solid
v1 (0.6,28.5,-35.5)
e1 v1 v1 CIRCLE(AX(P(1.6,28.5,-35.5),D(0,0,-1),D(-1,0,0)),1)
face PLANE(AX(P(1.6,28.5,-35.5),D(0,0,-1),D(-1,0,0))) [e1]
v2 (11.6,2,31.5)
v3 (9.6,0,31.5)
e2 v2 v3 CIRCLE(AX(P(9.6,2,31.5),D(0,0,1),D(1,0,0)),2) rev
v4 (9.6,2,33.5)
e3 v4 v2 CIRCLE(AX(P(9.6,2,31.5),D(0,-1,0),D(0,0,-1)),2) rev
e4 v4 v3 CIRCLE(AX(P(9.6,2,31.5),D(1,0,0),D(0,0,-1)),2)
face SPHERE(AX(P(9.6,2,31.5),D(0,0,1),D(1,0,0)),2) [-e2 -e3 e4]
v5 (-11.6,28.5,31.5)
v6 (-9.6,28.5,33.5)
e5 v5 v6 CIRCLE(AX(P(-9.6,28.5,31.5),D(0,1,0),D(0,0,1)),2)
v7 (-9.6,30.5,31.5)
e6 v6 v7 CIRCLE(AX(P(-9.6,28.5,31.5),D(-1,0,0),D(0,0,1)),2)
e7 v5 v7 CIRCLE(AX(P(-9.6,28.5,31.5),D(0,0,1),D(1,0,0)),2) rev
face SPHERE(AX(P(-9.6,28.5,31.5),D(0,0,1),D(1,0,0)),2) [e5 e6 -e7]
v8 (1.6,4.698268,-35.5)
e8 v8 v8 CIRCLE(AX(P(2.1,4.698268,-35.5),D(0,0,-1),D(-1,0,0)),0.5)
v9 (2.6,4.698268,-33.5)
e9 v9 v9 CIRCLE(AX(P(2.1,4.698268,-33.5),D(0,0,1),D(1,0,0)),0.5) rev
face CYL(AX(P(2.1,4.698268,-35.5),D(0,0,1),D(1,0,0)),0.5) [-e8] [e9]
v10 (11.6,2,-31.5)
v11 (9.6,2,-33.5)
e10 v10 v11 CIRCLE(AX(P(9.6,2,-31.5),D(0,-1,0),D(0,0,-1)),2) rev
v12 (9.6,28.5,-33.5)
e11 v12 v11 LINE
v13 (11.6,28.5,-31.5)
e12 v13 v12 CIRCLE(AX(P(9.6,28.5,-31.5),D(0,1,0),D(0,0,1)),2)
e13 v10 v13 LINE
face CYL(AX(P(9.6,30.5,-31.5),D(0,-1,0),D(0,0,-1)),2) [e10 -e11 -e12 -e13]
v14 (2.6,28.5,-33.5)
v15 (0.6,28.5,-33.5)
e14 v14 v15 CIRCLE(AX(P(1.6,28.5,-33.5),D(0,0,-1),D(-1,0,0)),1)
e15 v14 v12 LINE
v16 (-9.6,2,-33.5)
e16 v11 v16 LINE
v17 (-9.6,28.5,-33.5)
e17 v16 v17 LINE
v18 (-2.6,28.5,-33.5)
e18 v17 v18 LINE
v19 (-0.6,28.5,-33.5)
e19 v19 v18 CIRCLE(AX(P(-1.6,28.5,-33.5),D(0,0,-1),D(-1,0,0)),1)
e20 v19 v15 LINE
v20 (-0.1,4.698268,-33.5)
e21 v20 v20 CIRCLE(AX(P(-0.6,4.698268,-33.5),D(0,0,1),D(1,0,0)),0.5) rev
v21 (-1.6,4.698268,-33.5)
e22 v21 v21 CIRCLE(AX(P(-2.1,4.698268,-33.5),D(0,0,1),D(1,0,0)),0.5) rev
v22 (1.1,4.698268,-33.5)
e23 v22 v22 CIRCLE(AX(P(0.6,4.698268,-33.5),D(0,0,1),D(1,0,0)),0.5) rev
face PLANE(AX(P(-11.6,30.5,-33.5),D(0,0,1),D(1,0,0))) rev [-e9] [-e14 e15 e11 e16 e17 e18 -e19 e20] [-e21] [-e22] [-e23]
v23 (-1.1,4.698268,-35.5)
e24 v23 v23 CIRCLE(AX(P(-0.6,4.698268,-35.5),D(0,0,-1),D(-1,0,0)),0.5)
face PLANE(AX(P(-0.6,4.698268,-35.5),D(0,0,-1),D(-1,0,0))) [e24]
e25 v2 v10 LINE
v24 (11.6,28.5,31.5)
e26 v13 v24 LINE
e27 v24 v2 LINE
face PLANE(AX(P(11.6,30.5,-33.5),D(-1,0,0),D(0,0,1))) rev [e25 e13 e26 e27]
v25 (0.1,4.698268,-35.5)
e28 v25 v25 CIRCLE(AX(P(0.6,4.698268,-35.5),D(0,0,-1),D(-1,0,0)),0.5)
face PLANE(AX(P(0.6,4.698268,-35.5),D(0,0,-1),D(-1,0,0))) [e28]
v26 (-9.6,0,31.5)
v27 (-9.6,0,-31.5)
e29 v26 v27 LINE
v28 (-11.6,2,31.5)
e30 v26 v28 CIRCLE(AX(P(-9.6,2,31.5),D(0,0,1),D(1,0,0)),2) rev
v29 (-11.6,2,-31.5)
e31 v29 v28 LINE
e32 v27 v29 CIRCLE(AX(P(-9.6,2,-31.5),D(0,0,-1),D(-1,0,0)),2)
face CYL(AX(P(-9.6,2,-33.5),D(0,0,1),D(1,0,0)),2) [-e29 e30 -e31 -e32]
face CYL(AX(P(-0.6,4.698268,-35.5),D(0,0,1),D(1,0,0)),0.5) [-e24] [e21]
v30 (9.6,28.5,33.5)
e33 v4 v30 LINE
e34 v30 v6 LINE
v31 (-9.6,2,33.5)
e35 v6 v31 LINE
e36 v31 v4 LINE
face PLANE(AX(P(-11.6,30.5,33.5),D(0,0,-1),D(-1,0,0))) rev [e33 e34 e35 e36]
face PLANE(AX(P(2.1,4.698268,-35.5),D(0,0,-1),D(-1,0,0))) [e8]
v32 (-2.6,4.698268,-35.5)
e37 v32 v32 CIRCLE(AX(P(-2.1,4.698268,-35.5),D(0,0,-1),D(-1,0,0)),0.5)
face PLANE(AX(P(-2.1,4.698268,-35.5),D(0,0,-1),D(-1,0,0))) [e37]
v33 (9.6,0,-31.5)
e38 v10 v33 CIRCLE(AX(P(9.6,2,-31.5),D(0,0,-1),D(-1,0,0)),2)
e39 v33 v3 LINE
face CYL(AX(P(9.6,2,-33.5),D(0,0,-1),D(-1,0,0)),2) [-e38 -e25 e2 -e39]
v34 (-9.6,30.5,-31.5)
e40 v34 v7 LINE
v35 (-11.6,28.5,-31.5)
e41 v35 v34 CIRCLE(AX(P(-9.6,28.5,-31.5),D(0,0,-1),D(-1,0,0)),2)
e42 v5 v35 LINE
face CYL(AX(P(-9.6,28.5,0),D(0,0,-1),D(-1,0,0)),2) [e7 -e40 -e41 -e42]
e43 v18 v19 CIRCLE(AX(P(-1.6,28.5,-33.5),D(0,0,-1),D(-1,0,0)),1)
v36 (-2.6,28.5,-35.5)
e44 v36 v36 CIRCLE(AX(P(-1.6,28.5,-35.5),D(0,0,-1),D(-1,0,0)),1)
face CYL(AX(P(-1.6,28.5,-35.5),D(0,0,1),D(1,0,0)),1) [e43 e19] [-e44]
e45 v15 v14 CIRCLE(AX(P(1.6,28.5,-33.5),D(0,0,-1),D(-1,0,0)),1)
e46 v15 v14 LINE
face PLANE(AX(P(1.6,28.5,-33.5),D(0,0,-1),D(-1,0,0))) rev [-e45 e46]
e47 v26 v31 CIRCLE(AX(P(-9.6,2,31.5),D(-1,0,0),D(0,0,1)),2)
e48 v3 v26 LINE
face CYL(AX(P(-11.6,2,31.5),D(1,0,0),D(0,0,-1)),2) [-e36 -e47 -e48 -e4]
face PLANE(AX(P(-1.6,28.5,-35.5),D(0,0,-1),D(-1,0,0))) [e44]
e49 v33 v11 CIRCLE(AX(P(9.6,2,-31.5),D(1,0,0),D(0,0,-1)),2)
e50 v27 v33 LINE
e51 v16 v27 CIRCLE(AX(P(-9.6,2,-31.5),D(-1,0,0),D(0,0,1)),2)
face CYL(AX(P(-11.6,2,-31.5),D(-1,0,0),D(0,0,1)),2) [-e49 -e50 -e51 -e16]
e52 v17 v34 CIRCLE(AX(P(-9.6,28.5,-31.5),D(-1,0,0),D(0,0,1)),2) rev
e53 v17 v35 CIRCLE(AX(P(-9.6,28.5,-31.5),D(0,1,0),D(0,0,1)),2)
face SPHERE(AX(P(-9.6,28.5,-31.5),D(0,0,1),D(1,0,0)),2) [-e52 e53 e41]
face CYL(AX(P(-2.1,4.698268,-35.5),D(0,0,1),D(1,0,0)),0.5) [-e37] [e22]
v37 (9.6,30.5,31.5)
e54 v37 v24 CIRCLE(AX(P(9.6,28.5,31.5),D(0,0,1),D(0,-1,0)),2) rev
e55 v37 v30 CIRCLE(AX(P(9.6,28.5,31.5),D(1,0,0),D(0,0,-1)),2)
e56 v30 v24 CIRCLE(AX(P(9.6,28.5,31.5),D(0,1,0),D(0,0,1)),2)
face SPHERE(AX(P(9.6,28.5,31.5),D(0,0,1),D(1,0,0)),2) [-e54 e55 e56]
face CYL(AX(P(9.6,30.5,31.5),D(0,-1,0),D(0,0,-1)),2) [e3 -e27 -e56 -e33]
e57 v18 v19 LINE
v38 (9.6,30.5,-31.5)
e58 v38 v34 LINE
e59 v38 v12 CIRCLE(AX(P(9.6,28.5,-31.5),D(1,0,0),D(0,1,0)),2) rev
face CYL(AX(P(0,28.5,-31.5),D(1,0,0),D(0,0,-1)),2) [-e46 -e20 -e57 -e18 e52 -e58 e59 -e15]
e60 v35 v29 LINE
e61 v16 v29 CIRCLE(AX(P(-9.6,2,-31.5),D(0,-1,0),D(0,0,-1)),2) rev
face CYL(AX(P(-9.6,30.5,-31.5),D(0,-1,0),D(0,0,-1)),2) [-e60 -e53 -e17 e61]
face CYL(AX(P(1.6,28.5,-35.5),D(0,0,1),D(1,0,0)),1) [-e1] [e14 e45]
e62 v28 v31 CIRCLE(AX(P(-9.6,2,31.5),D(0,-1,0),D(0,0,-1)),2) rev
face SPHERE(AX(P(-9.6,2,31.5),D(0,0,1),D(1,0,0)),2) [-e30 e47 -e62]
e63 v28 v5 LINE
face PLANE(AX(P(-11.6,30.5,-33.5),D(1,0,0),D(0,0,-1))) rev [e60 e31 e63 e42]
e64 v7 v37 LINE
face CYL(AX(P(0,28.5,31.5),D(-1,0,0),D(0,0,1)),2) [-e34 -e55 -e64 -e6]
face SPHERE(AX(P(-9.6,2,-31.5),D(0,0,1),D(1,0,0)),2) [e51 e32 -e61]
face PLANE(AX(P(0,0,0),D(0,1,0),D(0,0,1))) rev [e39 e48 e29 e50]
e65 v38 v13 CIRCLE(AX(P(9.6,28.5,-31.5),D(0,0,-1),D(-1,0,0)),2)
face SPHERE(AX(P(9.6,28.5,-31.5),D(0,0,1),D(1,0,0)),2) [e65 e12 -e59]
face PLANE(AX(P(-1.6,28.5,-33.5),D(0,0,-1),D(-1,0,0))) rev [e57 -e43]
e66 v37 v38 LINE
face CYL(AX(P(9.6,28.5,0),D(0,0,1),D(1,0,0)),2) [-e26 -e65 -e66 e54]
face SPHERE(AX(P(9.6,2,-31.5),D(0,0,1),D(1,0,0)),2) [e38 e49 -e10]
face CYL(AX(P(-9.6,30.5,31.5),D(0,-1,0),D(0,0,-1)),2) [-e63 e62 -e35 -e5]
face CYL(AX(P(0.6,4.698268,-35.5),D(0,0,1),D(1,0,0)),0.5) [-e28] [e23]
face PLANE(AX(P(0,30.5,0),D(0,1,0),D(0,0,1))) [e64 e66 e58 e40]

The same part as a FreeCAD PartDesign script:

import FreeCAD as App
import Part
import Sketcher

V = App.Vector
Q = App.Units.Quantity


def add_polygon(sketch, points):
    """Adds a closed chain of lines whose ends are joined by coincident constraints."""
    first, n = sketch.GeometryCount, len(points)
    for a, b in zip(points, points[1:] + points[:1]):
        sketch.addGeometry(Part.LineSegment(App.Vector(*a, 0), App.Vector(*b, 0)), False)
    for i in range(n):
        sketch.addConstraint(Sketcher.Constraint("Coincident", first + i, 2, first + (i + 1) % n, 1))

doc = App.newDocument("Part")
body = doc.addObject("PartDesign::Body", "Body")

# Sketch on XZ plane
sketch1 = doc.addObject("Sketcher::SketchObject", "Sketch")
body.addObject(sketch1)
sketch1.AttachmentSupport = (doc.XZ_Plane, [""])
sketch1.MapMode = "FlatFace"
add_polygon(sketch1, [(-11.6, -33.5), (-11.6, 33.5), (11.6, 33.5), (11.6, -33.5)])  # lines 0-3
sketch1.addConstraint([
    Sketcher.Constraint("Vertical", 0),
    Sketcher.Constraint("Horizontal", 1),
    Sketcher.Constraint("Vertical", 2),
    Sketcher.Constraint("Horizontal", 3),
    Sketcher.Constraint("Symmetric", 0, 2, 2, 2, -1, 1),
    Sketcher.Constraint("DistanceY", 0, 1, 0, 2, Q("67 mm")),
    Sketcher.Constraint("DistanceX", 1, 1, 1, 2, Q("23.2 mm")),
])
pad1 = doc.addObject("PartDesign::Pad", "Pad")
body.addObject(pad1)
pad1.Profile = sketch1
pad1.Length = 30.5
pad1.Reversed = True
doc.recompute()

fillet = doc.addObject("PartDesign::Fillet", "Fillet")
body.addObject(fillet)
fillet.Base = (pad1, ["Edge1"])
fillet.UseAllEdges = True
fillet.Radius = 2

# Sketch on XY plane
sketch2 = doc.addObject("Sketcher::SketchObject", "Sketch001")
body.addObject(sketch2)
sketch2.AttachmentSupport = (doc.XY_Plane, [""])
sketch2.MapMode = "FlatFace"
sketch2.AttachmentOffset = App.Placement(V(0, 0, -33.5), App.Rotation())
sketch2.addGeometry([
    Part.Circle(V(1.6, 28.5, 0), V(0, 0, 1), 1),  # 0
    Part.Circle(V(-1.6, 28.5, 0), V(0, 0, 1), 1),  # 1
    Part.Circle(V(0.6, 4.698268, 0), V(0, 0, 1), 0.5),  # 2
    Part.Circle(V(2.1, 4.698268, 0), V(0, 0, 1), 0.5),  # 3
    Part.Circle(V(-0.6, 4.698268, 0), V(0, 0, 1), 0.5),  # 4
    Part.Circle(V(-2.1, 4.698268, 0), V(0, 0, 1), 0.5),  # 5
], False)
sketch2.addConstraint([
    Sketcher.Constraint("Equal", 0, 1),
    Sketcher.Constraint("Equal", 2, 3),
    Sketcher.Constraint("Equal", 3, 4),
    Sketcher.Constraint("Equal", 4, 5),
    Sketcher.Constraint("Symmetric", 0, 3, 1, 3, -2),
    Sketcher.Constraint("Symmetric", 2, 3, 4, 3, -2),
    Sketcher.Constraint("Symmetric", 3, 3, 5, 3, -2),
    Sketcher.Constraint("Horizontal", 2, 3, 3, 3),
    Sketcher.Constraint("Diameter", 0, Q("2 mm")),
    Sketcher.Constraint("Diameter", 2, Q("1 mm")),
    Sketcher.Constraint("DistanceX", 2, 3, 0, 3, Q("1 mm")),
    Sketcher.Constraint("DistanceX", -1, 1, 0, 3, Q("1.6 mm")),
    Sketcher.Constraint("DistanceY", -1, 1, 0, 3, Q("28.5 mm")),
    Sketcher.Constraint("DistanceX", -1, 1, 3, 3, Q("2.1 mm")),
    Sketcher.Constraint("DistanceY", -1, 1, 2, 3, Q("4.698268 mm")),
])
pad2 = doc.addObject("PartDesign::Pad", "Pad001")
body.addObject(pad2)
pad2.Profile = sketch2
pad2.Length = 2
pad2.Reversed = True

doc.recompute()
